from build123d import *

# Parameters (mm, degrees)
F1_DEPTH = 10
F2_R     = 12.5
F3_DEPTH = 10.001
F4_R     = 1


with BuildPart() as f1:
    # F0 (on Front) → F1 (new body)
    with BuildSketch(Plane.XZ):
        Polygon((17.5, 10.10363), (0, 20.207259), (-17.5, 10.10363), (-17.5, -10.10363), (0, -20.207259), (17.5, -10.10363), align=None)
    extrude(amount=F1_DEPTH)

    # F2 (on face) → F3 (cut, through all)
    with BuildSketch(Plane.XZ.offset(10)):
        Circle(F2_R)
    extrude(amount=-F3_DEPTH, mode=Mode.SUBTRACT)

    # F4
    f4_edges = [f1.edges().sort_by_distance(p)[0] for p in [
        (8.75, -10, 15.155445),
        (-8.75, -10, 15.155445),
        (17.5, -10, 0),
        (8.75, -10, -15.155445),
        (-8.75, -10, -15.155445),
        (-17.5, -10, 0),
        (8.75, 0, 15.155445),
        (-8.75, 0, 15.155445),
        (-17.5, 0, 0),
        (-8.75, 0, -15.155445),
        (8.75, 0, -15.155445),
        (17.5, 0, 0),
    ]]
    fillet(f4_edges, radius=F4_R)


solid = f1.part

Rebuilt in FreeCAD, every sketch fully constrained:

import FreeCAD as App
import Part
import Sketcher

V = App.Vector
Q = App.Units.Quantity


def edges_at(feature, points):
    """Names of the edges that pass closest to the given points."""
    edges = feature.Shape.Edges
    near = lambda p: min(range(len(edges)), key=lambda i: edges[i].distToShape(Part.Vertex(*p))[0])
    return sorted({f"Edge{near(p) + 1}" for p in points})


def add_polygon(sketch, points):
    """Adds a closed chain of lines whose ends are joined by coincident constraints."""
    first, n = sketch.GeometryCount, len(points)
    for a, b in zip(points, points[1:] + points[:1]):
        sketch.addGeometry(Part.LineSegment(App.Vector(*a, 0), App.Vector(*b, 0)), False)
    for i in range(n):
        sketch.addConstraint(Sketcher.Constraint("Coincident", first + i, 2, first + (i + 1) % n, 1))

doc = App.newDocument("Part")
body = doc.addObject("PartDesign::Body", "Body")

sketch1 = body.newObject("Sketcher::SketchObject", "Sketch")
sketch1.AttachmentSupport = (doc.getObject("XZ_Plane"), [""])
sketch1.MapMode = "FlatFace"
add_polygon(sketch1, [(18, 10), (0, 20), (-18, 10), (-18, -10), (0, -20), (18, -10)])
sketch1.addConstraint([
    Sketcher.Constraint("Vertical", 2),
    Sketcher.Constraint("Vertical", 5),
    Sketcher.Constraint("Symmetric", 0, 2, 3, 2, -1, 1),
    Sketcher.Constraint("Symmetric", 1, 2, 4, 2, -1, 1),
    Sketcher.Constraint("PointOnObject", 0, 2, -2),
    Sketcher.Constraint("Parallel", 0, 3),
    Sketcher.Constraint("Horizontal", 2, 2, 4, 2),
    Sketcher.Constraint("Angle", 0, Q("150.000002 deg")),
    Sketcher.Constraint("DistanceX", 2, 2, 4, 2, 35.0),
    Sketcher.Constraint("DistanceY", 2, 2, 2, 1, 20.20726),
])
pad1 = body.newObject("PartDesign::Pad", "Pad")
pad1.Profile = sketch1
pad1.Length = 10

sketch2 = body.newObject("Sketcher::SketchObject", "Sketch001")
sketch2.AttachmentSupport = (doc.getObject("XZ_Plane"), [""])
sketch2.MapMode = "FlatFace"
sketch2.AttachmentOffset = App.Placement(V(0, 0, 10), App.Rotation())
sketch2.addGeometry(Part.Circle(V(0, 0, 0), V(0, 0, 1), 12), False)
sketch2.addConstraint([
    Sketcher.Constraint("Coincident", 0, 3, -1, 1),
    Sketcher.Constraint("Diameter", 0, 25.0),
])
pocket1 = body.newObject("PartDesign::Pocket", "Pocket")
pocket1.Profile = sketch2
pocket1.Type = "ThroughAll"
doc.recompute()

fillet = body.newObject("PartDesign::Fillet", "Fillet")
fillet.Base = (pocket1, edges_at(pocket1, [
    (8.75, -10, 15.155),
    (-8.75, -10, 15.155),
    (17.5, -10, 0),
    (8.75, -10, -15.155),
    (-8.75, -10, -15.155),
    (-17.5, -10, 0),
    (8.75, 0, 15.155),
    (-8.75, 0, 15.155),
    (-17.5, 0, 0),
    (-8.75, 0, -15.155),
    (8.75, 0, -15.155),
    (17.5, 0, 0),
]))
fillet.Radius = 1

doc.recompute()
